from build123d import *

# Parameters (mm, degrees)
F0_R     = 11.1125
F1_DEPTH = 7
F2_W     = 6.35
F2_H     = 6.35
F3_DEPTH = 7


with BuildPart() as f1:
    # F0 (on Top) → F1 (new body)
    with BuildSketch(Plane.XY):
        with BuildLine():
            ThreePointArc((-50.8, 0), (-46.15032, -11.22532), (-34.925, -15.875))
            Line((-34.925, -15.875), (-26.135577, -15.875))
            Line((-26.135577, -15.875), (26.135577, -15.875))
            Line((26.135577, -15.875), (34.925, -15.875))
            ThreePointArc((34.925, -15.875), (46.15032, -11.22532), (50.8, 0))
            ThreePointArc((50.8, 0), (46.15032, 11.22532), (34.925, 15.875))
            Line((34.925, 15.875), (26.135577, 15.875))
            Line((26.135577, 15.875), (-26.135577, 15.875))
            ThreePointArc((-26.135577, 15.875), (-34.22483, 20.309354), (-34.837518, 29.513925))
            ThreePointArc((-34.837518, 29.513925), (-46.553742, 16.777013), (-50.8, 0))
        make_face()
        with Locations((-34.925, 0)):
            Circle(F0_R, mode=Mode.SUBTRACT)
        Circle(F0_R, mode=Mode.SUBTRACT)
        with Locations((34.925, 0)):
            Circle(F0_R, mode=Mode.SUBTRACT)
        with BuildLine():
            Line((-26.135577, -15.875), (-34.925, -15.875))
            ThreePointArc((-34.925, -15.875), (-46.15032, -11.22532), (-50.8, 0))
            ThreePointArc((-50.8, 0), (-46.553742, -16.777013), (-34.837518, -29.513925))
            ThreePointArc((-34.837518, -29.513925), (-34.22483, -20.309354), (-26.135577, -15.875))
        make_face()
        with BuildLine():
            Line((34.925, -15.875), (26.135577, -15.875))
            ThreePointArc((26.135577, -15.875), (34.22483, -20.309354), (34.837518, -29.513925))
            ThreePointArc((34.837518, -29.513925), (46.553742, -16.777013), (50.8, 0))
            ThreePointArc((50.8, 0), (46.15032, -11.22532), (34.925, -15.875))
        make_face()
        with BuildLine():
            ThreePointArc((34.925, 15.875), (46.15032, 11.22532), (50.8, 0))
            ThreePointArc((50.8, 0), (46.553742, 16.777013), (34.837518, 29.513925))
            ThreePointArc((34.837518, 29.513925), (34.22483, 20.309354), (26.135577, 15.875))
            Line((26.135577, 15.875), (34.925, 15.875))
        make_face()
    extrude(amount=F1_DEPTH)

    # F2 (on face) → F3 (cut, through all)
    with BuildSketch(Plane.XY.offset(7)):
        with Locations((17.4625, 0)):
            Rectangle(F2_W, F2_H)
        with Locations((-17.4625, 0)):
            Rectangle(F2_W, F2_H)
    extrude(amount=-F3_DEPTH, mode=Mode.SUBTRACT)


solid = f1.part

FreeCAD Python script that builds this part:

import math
import FreeCAD as App
import Part
import Sketcher
Q = App.Units.Quantity

doc = App.newDocument("Part")
params = doc.addObject("Spreadsheet::Sheet", "Params")
for row, (alias, value) in enumerate([
    ("sketch1_diameter", "0.875 in"),
    ("pad1_length", "7 mm"),
    ("sketch2_width", "0.25 in"),
], start=1):
    params.set(f"A{row}", alias)
    params.set(f"B{row}", "=" + value)
    params.setAlias(f"B{row}", alias)

body = doc.addObject("PartDesign::Body", "Body")

# Sketch on XY plane
sketch1 = body.newObject("Sketcher::SketchObject", "Sketch")
sketch1.AttachmentSupport = (doc.getObject("XY_Plane"), [""])
sketch1.MapMode = "FlatFace"
sketch1.addGeometry(Part.ArcOfCircle(Part.Circle(App.Vector(-16, 0, 0), App.Vector(0, 0, 1), 35), math.radians(123), math.radians(180)), False)
sketch1.addGeometry(Part.ArcOfCircle(Part.Circle(App.Vector(-16, 0, 0), App.Vector(0, 0, 1), 35), math.radians(-180), math.radians(-123)), False)
sketch1.addGeometry(Part.ArcOfCircle(Part.Circle(App.Vector(-26, -25, 0), App.Vector(0, 0, 1), 10), math.radians(90), math.radians(205)), False)
sketch1.addGeometry(Part.LineSegment(App.Vector(-26, -16, 0), App.Vector(26, -16, 0)), False)
sketch1.addGeometry(Part.ArcOfCircle(Part.Circle(App.Vector(26, -25, 0), App.Vector(0, 0, 1), 10), math.radians(-25), math.radians(90)), False)
sketch1.addGeometry(Part.ArcOfCircle(Part.Circle(App.Vector(16, 0, 0), App.Vector(0, 0, 1), 35), math.radians(-57), math.radians(0)), False)
sketch1.addGeometry(Part.ArcOfCircle(Part.Circle(App.Vector(16, 0, 0), App.Vector(0, 0, 1), 35), math.radians(0), math.radians(57)), False)
sketch1.addGeometry(Part.ArcOfCircle(Part.Circle(App.Vector(26, 25, 0), App.Vector(0, 0, 1), 10), math.radians(-90), math.radians(25)), False)
sketch1.addGeometry(Part.LineSegment(App.Vector(26, 16, 0), App.Vector(-26, 16, 0)), False)
sketch1.addGeometry(Part.ArcOfCircle(Part.Circle(App.Vector(-26, 25, 0), App.Vector(0, 0, 1), 10), math.radians(155), math.radians(270)), False)
sketch1.addGeometry(Part.Circle(App.Vector(-35, 0, 0), App.Vector(0, 0, 1), 11), False)
sketch1.addGeometry(Part.Circle(App.Vector(0, 0, 0), App.Vector(0, 0, 1), 11), False)
sketch1.addGeometry(Part.Circle(App.Vector(35, 0, 0), App.Vector(0, 0, 1), 11), False)
sketch1.addConstraint(Sketcher.Constraint("Tangent", 0, 2, 1, 1))
sketch1.addConstraint(Sketcher.Constraint("Coincident", 1, 2, 2, 2))
sketch1.addConstraint(Sketcher.Constraint("Tangent", 2, 1, 3, 1))
sketch1.addConstraint(Sketcher.Constraint("Tangent", 3, 2, 4, 2))
sketch1.addConstraint(Sketcher.Constraint("Coincident", 4, 1, 5, 1))
sketch1.addConstraint(Sketcher.Constraint("Tangent", 5, 2, 6, 1))
sketch1.addConstraint(Sketcher.Constraint("Coincident", 6, 2, 7, 2))
sketch1.addConstraint(Sketcher.Constraint("Tangent", 7, 1, 8, 1))
sketch1.addConstraint(Sketcher.Constraint("Tangent", 8, 2, 9, 2))
sketch1.addConstraint(Sketcher.Constraint("Coincident", 9, 1, 0, 1))
sketch1.addConstraint(Sketcher.Constraint("Horizontal", 3))
sketch1.addConstraint(Sketcher.Constraint("Horizontal", 8))
sketch1.addConstraint(Sketcher.Constraint("Coincident", 11, 3, -1, 1))
sketch1.addConstraint(Sketcher.Constraint("Equal", 0, 1))
sketch1.addConstraint(Sketcher.Constraint("Equal", 2, 4))
sketch1.addConstraint(Sketcher.Constraint("Equal", 1, 5))
sketch1.addConstraint(Sketcher.Constraint("Equal", 5, 6))
sketch1.addConstraint(Sketcher.Constraint("Equal", 4, 7))
sketch1.addConstraint(Sketcher.Constraint("Equal", 7, 9))
sketch1.addConstraint(Sketcher.Constraint("Equal", 10, 11))
sketch1.addConstraint(Sketcher.Constraint("Equal", 11, 12))
sketch1.addConstraint(Sketcher.Constraint("Symmetric", 0, 3, 5, 3, -1, 1))
sketch1.addConstraint(Sketcher.Constraint("Symmetric", 2, 3, 7, 3, -1, 1))
sketch1.addConstraint(Sketcher.Constraint("Symmetric", 10, 3, 12, 3, -1, 1))
sketch1.addConstraint(Sketcher.Constraint("Symmetric", 1, 2, 4, 1, -2))
sketch1.addConstraint(Sketcher.Constraint("PointOnObject", 10, 3, -1))
sketch1.addConstraint(Sketcher.Constraint("PointOnObject", 0, 2, -1))
sketch1.addConstraint(Sketcher.Constraint("PointOnObject", 5, 2, -1))
sketch1.addConstraint(Sketcher.Constraint("Horizontal", 6, 2, 9, 1))
sketch1.addConstraint(Sketcher.Constraint("Diameter", 10, Q("0.875 in")))
sketch1.addConstraint(Sketcher.Constraint("DistanceX", 0, 2, -1, 1, Q("2 in")))
sketch1.addConstraint(Sketcher.Constraint("DistanceX", 10, 3, -1, 1, Q("1.375 in")))
sketch1.addConstraint(Sketcher.Constraint("DistanceY", 2, 1, -1, 1, Q("0.625 in")))
sketch1.addConstraint(Sketcher.Constraint("Radius", 2, 9.595479))
sketch1.addConstraint(Sketcher.Constraint("Radius", 0, 35.266215))
sketch1.addConstraint(Sketcher.Constraint("DistanceX", 3, 1, 3, 2, 52.271154))
sketch1.setExpression("Constraints[29]", "Params.sketch1_diameter")
pad1 = body.newObject("PartDesign::Pad", "Pad")
pad1.Profile = sketch1
pad1.setExpression("Length", "Params.pad1_length")

# Sketch on XY plane
sketch2 = body.newObject("Sketcher::SketchObject", "Sketch001")
sketch2.AttachmentSupport = (doc.getObject("XY_Plane"), [""])
sketch2.MapMode = "FlatFace"
sketch2.AttachmentOffset = App.Placement(App.Vector(0, 0, 7), App.Rotation())
sketch2.addGeometry(Part.LineSegment(App.Vector(14, 3, 0), App.Vector(14, -3, 0)), False)
sketch2.addGeometry(Part.LineSegment(App.Vector(14, -3, 0), App.Vector(21, -3, 0)), False)
sketch2.addGeometry(Part.LineSegment(App.Vector(21, -3, 0), App.Vector(21, 3, 0)), False)
sketch2.addGeometry(Part.LineSegment(App.Vector(21, 3, 0), App.Vector(14, 3, 0)), False)
sketch2.addGeometry(Part.LineSegment(App.Vector(-21, 3, 0), App.Vector(-21, -3, 0)), False)
sketch2.addGeometry(Part.LineSegment(App.Vector(-21, -3, 0), App.Vector(-14, -3, 0)), False)
sketch2.addGeometry(Part.LineSegment(App.Vector(-14, -3, 0), App.Vector(-14, 3, 0)), False)
sketch2.addGeometry(Part.LineSegment(App.Vector(-14, 3, 0), App.Vector(-21, 3, 0)), False)
sketch2.addConstraint(Sketcher.Constraint("Coincident", 0, 2, 1, 1))
sketch2.addConstraint(Sketcher.Constraint("Coincident", 1, 2, 2, 1))
sketch2.addConstraint(Sketcher.Constraint("Coincident", 2, 2, 3, 1))
sketch2.addConstraint(Sketcher.Constraint("Coincident", 3, 2, 0, 1))
sketch2.addConstraint(Sketcher.Constraint("Coincident", 4, 2, 5, 1))
sketch2.addConstraint(Sketcher.Constraint("Coincident", 5, 2, 6, 1))
sketch2.addConstraint(Sketcher.Constraint("Coincident", 6, 2, 7, 1))
sketch2.addConstraint(Sketcher.Constraint("Coincident", 7, 2, 4, 1))
sketch2.addConstraint(Sketcher.Constraint("Vertical", 0))
sketch2.addConstraint(Sketcher.Constraint("Horizontal", 1))
sketch2.addConstraint(Sketcher.Constraint("Vertical", 2))
sketch2.addConstraint(Sketcher.Constraint("Horizontal", 3))
sketch2.addConstraint(Sketcher.Constraint("Vertical", 4))
sketch2.addConstraint(Sketcher.Constraint("Horizontal", 5))
sketch2.addConstraint(Sketcher.Constraint("Vertical", 6))
sketch2.addConstraint(Sketcher.Constraint("Horizontal", 7))
sketch2.addConstraint(Sketcher.Constraint("Symmetric", 2, 2, 4, 2, -1, 1))
sketch2.addConstraint(Sketcher.Constraint("Symmetric", 0, 2, 6, 2, -1, 1))
sketch2.addConstraint(Sketcher.Constraint("Horizontal", 1, 2, 4, 2))
sketch2.addConstraint(Sketcher.Constraint("Equal", 7, 0))
sketch2.addConstraint(Sketcher.Constraint("DistanceX", 1, 1, 1, 2, Q("0.25 in")))
sketch2.addConstraint(Sketcher.Constraint("DistanceX", -1, 1, 0, 2, Q("0.5625 in")))
sketch2.setExpression("Constraints[20]", "Params.sketch2_width")
pocket1 = body.newObject("PartDesign::Pocket", "Pocket")
pocket1.Profile = sketch2
pocket1.Type = "ThroughAll"

doc.recompute()
